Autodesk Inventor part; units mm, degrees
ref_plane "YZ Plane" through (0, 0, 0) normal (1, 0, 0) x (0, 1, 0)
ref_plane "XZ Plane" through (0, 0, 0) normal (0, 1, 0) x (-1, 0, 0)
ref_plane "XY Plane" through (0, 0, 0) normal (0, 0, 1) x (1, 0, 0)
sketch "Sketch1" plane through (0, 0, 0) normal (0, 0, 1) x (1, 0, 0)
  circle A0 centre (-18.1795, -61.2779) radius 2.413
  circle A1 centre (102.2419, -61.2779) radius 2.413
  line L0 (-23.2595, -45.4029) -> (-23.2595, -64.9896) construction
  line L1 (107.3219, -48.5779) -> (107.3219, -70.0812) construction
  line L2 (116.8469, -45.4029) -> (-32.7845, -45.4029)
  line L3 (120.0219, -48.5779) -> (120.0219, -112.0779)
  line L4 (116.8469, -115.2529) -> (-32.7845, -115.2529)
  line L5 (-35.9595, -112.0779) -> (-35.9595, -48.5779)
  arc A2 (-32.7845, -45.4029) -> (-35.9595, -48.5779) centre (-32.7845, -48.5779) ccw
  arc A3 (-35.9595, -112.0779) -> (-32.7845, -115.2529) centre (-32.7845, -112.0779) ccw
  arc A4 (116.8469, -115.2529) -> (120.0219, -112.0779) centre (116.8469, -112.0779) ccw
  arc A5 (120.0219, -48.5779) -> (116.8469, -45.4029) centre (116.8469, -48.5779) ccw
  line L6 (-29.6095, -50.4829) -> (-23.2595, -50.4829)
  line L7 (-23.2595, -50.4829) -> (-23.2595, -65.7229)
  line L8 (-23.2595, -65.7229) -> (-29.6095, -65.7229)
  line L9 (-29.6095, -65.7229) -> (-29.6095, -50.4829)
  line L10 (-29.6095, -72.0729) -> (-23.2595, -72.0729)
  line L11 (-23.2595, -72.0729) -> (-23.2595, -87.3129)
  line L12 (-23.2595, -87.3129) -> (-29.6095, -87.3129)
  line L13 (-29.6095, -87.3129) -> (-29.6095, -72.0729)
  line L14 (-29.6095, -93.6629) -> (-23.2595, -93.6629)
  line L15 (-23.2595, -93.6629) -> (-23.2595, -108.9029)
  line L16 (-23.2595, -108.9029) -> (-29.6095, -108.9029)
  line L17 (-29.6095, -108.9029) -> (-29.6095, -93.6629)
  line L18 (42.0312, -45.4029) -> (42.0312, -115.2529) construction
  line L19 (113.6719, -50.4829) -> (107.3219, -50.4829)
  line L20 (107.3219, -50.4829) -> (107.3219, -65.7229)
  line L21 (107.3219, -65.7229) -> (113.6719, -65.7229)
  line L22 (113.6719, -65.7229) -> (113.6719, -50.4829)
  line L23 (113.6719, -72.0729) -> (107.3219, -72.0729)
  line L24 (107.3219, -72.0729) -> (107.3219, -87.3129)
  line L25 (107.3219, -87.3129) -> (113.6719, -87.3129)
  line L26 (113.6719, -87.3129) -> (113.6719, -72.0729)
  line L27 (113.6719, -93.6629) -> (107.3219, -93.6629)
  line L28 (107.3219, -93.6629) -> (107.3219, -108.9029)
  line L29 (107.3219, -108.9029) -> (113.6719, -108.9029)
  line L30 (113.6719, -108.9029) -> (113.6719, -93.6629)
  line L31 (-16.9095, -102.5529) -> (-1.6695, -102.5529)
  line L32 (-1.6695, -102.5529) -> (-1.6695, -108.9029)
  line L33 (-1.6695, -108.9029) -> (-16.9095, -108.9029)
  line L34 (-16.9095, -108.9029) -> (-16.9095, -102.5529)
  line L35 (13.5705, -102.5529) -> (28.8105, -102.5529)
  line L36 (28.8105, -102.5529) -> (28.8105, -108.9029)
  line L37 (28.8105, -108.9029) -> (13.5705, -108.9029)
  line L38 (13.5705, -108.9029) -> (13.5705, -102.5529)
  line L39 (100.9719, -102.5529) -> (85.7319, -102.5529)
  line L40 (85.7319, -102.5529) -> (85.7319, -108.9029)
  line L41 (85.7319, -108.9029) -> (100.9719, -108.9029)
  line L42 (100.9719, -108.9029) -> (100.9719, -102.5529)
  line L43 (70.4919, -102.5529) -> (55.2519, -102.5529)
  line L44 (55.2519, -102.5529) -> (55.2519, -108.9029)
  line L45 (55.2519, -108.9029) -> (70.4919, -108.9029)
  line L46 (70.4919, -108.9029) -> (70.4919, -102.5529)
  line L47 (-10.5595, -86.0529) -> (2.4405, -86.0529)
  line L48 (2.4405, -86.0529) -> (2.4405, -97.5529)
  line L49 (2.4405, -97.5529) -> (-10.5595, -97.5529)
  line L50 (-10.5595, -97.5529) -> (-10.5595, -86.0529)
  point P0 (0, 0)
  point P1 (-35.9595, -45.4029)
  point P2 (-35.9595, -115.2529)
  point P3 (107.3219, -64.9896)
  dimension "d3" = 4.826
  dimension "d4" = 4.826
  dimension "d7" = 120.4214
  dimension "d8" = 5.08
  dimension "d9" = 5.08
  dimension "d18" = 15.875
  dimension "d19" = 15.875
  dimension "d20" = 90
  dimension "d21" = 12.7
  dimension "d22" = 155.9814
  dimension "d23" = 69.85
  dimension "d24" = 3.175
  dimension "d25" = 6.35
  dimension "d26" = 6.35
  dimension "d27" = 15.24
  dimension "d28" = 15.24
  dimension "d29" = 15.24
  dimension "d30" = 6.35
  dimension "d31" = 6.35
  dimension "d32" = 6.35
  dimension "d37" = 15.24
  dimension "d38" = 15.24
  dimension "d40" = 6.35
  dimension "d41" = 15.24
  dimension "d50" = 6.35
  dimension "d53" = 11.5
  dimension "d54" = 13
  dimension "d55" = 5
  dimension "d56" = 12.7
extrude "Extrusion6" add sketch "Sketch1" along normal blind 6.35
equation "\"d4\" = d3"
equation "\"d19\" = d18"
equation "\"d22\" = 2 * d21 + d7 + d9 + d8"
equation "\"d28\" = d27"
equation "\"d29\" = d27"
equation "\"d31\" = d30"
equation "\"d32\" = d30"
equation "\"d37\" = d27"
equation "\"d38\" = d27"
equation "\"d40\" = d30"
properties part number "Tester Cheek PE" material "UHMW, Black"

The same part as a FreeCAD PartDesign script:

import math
import FreeCAD as App
import Part
import Sketcher
from FreeCAD import Vector
Q = App.Units.Quantity

doc = App.newDocument("Part")
body = doc.addObject("PartDesign::Body", "Body")

# Sketch on XY plane
sketch1 = body.newObject("Sketcher::SketchObject", "Sketch")
sketch1.AttachmentSupport = (doc.getObject("XY_Plane"), [""])
sketch1.MapMode = "FlatFace"
sketch1.addGeometry([
    Part.ArcOfCircle(Part.Circle(Vector(116.8469, -48.5779, 0), Vector(0, 0, 1), 3.175), math.radians(0), math.radians(90)),  # 0
    Part.LineSegment(Vector(116.8469, -45.4029, 0), Vector(-32.7845, -45.4029, 0)),  # 1
    Part.ArcOfCircle(Part.Circle(Vector(-32.7845, -48.5779, 0), Vector(0, 0, 1), 3.175), math.radians(90), math.radians(180)),  # 2
    Part.LineSegment(Vector(-35.9595, -48.5779, 0), Vector(-35.9595, -112.0779, 0)),  # 3
    Part.ArcOfCircle(Part.Circle(Vector(-32.7845, -112.0779, 0), Vector(0, 0, 1), 3.175), math.radians(180), math.radians(270)),  # 4
    Part.LineSegment(Vector(-32.7845, -115.2529, 0), Vector(116.8469, -115.2529, 0)),  # 5
    Part.ArcOfCircle(Part.Circle(Vector(116.8469, -112.0779, 0), Vector(0, 0, 1), 3.175), math.radians(-90), math.radians(0)),  # 6
    Part.LineSegment(Vector(120.0219, -112.0779, 0), Vector(120.0219, -48.5779, 0)),  # 7
    Part.LineSegment(Vector(-29.6095, -108.9029, 0), Vector(-29.6095, -93.6629, 0)),  # 8
    Part.LineSegment(Vector(-29.6095, -93.6629, 0), Vector(-23.2595, -93.6629, 0)),  # 9
    Part.LineSegment(Vector(-23.2595, -93.6629, 0), Vector(-23.2595, -108.9029, 0)),  # 10
    Part.LineSegment(Vector(-23.2595, -108.9029, 0), Vector(-29.6095, -108.9029, 0)),  # 11
    Part.LineSegment(Vector(-16.9095, -108.9029, 0), Vector(-16.9095, -102.5529, 0)),  # 12
    Part.LineSegment(Vector(-16.9095, -102.5529, 0), Vector(-1.6695, -102.5529, 0)),  # 13
    Part.LineSegment(Vector(-1.6695, -102.5529, 0), Vector(-1.6695, -108.9029, 0)),  # 14
    Part.LineSegment(Vector(-1.6695, -108.9029, 0), Vector(-16.9095, -108.9029, 0)),  # 15
    Part.LineSegment(Vector(13.5705, -108.9029, 0), Vector(13.5705, -102.5529, 0)),  # 16
    Part.LineSegment(Vector(13.5705, -102.5529, 0), Vector(28.8105, -102.5529, 0)),  # 17
    Part.LineSegment(Vector(28.8105, -102.5529, 0), Vector(28.8105, -108.9029, 0)),  # 18
    Part.LineSegment(Vector(28.8105, -108.9029, 0), Vector(13.5705, -108.9029, 0)),  # 19
    Part.LineSegment(Vector(-10.5595, -97.5529, 0), Vector(-10.5595, -86.0529, 0)),  # 20
    Part.LineSegment(Vector(-10.5595, -86.0529, 0), Vector(2.4405, -86.0529, 0)),  # 21
    Part.LineSegment(Vector(2.4405, -86.0529, 0), Vector(2.4405, -97.5529, 0)),  # 22
    Part.LineSegment(Vector(2.4405, -97.5529, 0), Vector(-10.5595, -97.5529, 0)),  # 23
    Part.LineSegment(Vector(55.2519, -102.5529, 0), Vector(70.4919, -102.5529, 0)),  # 24
    Part.LineSegment(Vector(70.4919, -102.5529, 0), Vector(70.4919, -108.9029, 0)),  # 25
    Part.LineSegment(Vector(70.4919, -108.9029, 0), Vector(55.2519, -108.9029, 0)),  # 26
    Part.LineSegment(Vector(55.2519, -108.9029, 0), Vector(55.2519, -102.5529, 0)),  # 27
    Part.LineSegment(Vector(85.7319, -102.5529, 0), Vector(100.9719, -102.5529, 0)),  # 28
    Part.LineSegment(Vector(100.9719, -102.5529, 0), Vector(100.9719, -108.9029, 0)),  # 29
    Part.LineSegment(Vector(100.9719, -108.9029, 0), Vector(85.7319, -108.9029, 0)),  # 30
    Part.LineSegment(Vector(85.7319, -108.9029, 0), Vector(85.7319, -102.5529, 0)),  # 31
    Part.LineSegment(Vector(107.3219, -93.6629, 0), Vector(113.6719, -93.6629, 0)),  # 32
    Part.LineSegment(Vector(113.6719, -93.6629, 0), Vector(113.6719, -108.9029, 0)),  # 33
    Part.LineSegment(Vector(113.6719, -108.9029, 0), Vector(107.3219, -108.9029, 0)),  # 34
    Part.LineSegment(Vector(107.3219, -108.9029, 0), Vector(107.3219, -93.6629, 0)),  # 35
    Part.LineSegment(Vector(-29.6095, -87.3129, 0), Vector(-29.6095, -72.0729, 0)),  # 36
    Part.LineSegment(Vector(-29.6095, -72.0729, 0), Vector(-23.2595, -72.0729, 0)),  # 37
    Part.LineSegment(Vector(-23.2595, -72.0729, 0), Vector(-23.2595, -87.3129, 0)),  # 38
    Part.LineSegment(Vector(-23.2595, -87.3129, 0), Vector(-29.6095, -87.3129, 0)),  # 39
    Part.Circle(Vector(-18.1795, -61.2779, 0), Vector(0, 0, 1), 2.413),  # 40
    Part.LineSegment(Vector(-29.6095, -65.7229, 0), Vector(-29.6095, -50.4829, 0)),  # 41
    Part.LineSegment(Vector(-29.6095, -50.4829, 0), Vector(-23.2595, -50.4829, 0)),  # 42
    Part.LineSegment(Vector(-23.2595, -50.4829, 0), Vector(-23.2595, -65.7229, 0)),  # 43
    Part.LineSegment(Vector(-23.2595, -65.7229, 0), Vector(-29.6095, -65.7229, 0)),  # 44
    Part.LineSegment(Vector(107.3219, -72.0729, 0), Vector(113.6719, -72.0729, 0)),  # 45
    Part.LineSegment(Vector(113.6719, -72.0729, 0), Vector(113.6719, -87.3129, 0)),  # 46
    Part.LineSegment(Vector(113.6719, -87.3129, 0), Vector(107.3219, -87.3129, 0)),  # 47
    Part.LineSegment(Vector(107.3219, -87.3129, 0), Vector(107.3219, -72.0729, 0)),  # 48
    Part.Circle(Vector(102.2419, -61.2779, 0), Vector(0, 0, 1), 2.413),  # 49
    Part.LineSegment(Vector(107.3219, -50.4829, 0), Vector(113.6719, -50.4829, 0)),  # 50
    Part.LineSegment(Vector(113.6719, -50.4829, 0), Vector(113.6719, -65.7229, 0)),  # 51
    Part.LineSegment(Vector(113.6719, -65.7229, 0), Vector(107.3219, -65.7229, 0)),  # 52
    Part.LineSegment(Vector(107.3219, -65.7229, 0), Vector(107.3219, -50.4829, 0)),  # 53
], False)
sketch1.addConstraint([
    Sketcher.Constraint("Tangent", 0, 2, 1, 1),
    Sketcher.Constraint("Tangent", 1, 2, 2, 1),
    Sketcher.Constraint("Tangent", 2, 2, 3, 1),
    Sketcher.Constraint("Tangent", 3, 2, 4, 1),
    Sketcher.Constraint("Tangent", 4, 2, 5, 1),
    Sketcher.Constraint("Tangent", 5, 2, 6, 1),
    Sketcher.Constraint("Tangent", 6, 2, 7, 1),
    Sketcher.Constraint("Tangent", 7, 2, 0, 1),
    Sketcher.Constraint("Coincident", 8, 2, 9, 1),
    Sketcher.Constraint("Coincident", 9, 2, 10, 1),
    Sketcher.Constraint("Coincident", 10, 2, 11, 1),
    Sketcher.Constraint("Coincident", 11, 2, 8, 1),
    Sketcher.Constraint("Coincident", 12, 2, 13, 1),
    Sketcher.Constraint("Coincident", 13, 2, 14, 1),
    Sketcher.Constraint("Coincident", 14, 2, 15, 1),
    Sketcher.Constraint("Coincident", 15, 2, 12, 1),
    Sketcher.Constraint("Coincident", 16, 2, 17, 1),
    Sketcher.Constraint("Coincident", 17, 2, 18, 1),
    Sketcher.Constraint("Coincident", 18, 2, 19, 1),
    Sketcher.Constraint("Coincident", 19, 2, 16, 1),
    Sketcher.Constraint("Coincident", 20, 2, 21, 1),
    Sketcher.Constraint("Coincident", 21, 2, 22, 1),
    Sketcher.Constraint("Coincident", 22, 2, 23, 1),
    Sketcher.Constraint("Coincident", 23, 2, 20, 1),
    Sketcher.Constraint("Coincident", 24, 2, 25, 1),
    Sketcher.Constraint("Coincident", 25, 2, 26, 1),
    Sketcher.Constraint("Coincident", 26, 2, 27, 1),
    Sketcher.Constraint("Coincident", 27, 2, 24, 1),
    Sketcher.Constraint("Coincident", 28, 2, 29, 1),
    Sketcher.Constraint("Coincident", 29, 2, 30, 1),
    Sketcher.Constraint("Coincident", 30, 2, 31, 1),
    Sketcher.Constraint("Coincident", 31, 2, 28, 1),
    Sketcher.Constraint("Coincident", 32, 2, 33, 1),
    Sketcher.Constraint("Coincident", 33, 2, 34, 1),
    Sketcher.Constraint("Coincident", 34, 2, 35, 1),
    Sketcher.Constraint("Coincident", 35, 2, 32, 1),
    Sketcher.Constraint("Coincident", 36, 2, 37, 1),
    Sketcher.Constraint("Coincident", 37, 2, 38, 1),
    Sketcher.Constraint("Coincident", 38, 2, 39, 1),
    Sketcher.Constraint("Coincident", 39, 2, 36, 1),
    Sketcher.Constraint("Coincident", 41, 2, 42, 1),
    Sketcher.Constraint("Coincident", 42, 2, 43, 1),
    Sketcher.Constraint("Coincident", 43, 2, 44, 1),
    Sketcher.Constraint("Coincident", 44, 2, 41, 1),
    Sketcher.Constraint("Coincident", 45, 2, 46, 1),
    Sketcher.Constraint("Coincident", 46, 2, 47, 1),
    Sketcher.Constraint("Coincident", 47, 2, 48, 1),
    Sketcher.Constraint("Coincident", 48, 2, 45, 1),
    Sketcher.Constraint("Coincident", 50, 2, 51, 1),
    Sketcher.Constraint("Coincident", 51, 2, 52, 1),
    Sketcher.Constraint("Coincident", 52, 2, 53, 1),
    Sketcher.Constraint("Coincident", 53, 2, 50, 1),
    Sketcher.Constraint("Horizontal", 1),
    Sketcher.Constraint("Vertical", 3),
    Sketcher.Constraint("Horizontal", 5),
    Sketcher.Constraint("Vertical", 7),
    Sketcher.Constraint("Vertical", 8),
    Sketcher.Constraint("Horizontal", 9),
    Sketcher.Constraint("Vertical", 10),
    Sketcher.Constraint("Horizontal", 11),
    Sketcher.Constraint("Vertical", 12),
    Sketcher.Constraint("Horizontal", 13),
    Sketcher.Constraint("Vertical", 14),
    Sketcher.Constraint("Horizontal", 15),
    Sketcher.Constraint("Vertical", 16),
    Sketcher.Constraint("Horizontal", 17),
    Sketcher.Constraint("Vertical", 18),
    Sketcher.Constraint("Horizontal", 19),
    Sketcher.Constraint("Vertical", 20),
    Sketcher.Constraint("Horizontal", 21),
    Sketcher.Constraint("Vertical", 22),
    Sketcher.Constraint("Horizontal", 23),
    Sketcher.Constraint("Horizontal", 24),
    Sketcher.Constraint("Vertical", 25),
    Sketcher.Constraint("Horizontal", 26),
    Sketcher.Constraint("Vertical", 27),
    Sketcher.Constraint("Horizontal", 28),
    Sketcher.Constraint("Vertical", 29),
    Sketcher.Constraint("Horizontal", 30),
    Sketcher.Constraint("Vertical", 31),
    Sketcher.Constraint("Horizontal", 32),
    Sketcher.Constraint("Vertical", 33),
    Sketcher.Constraint("Horizontal", 34),
    Sketcher.Constraint("Vertical", 35),
    Sketcher.Constraint("Vertical", 36),
    Sketcher.Constraint("Horizontal", 37),
    Sketcher.Constraint("Vertical", 38),
    Sketcher.Constraint("Horizontal", 39),
    Sketcher.Constraint("Vertical", 41),
    Sketcher.Constraint("Horizontal", 42),
    Sketcher.Constraint("Vertical", 43),
    Sketcher.Constraint("Horizontal", 44),
    Sketcher.Constraint("Horizontal", 45),
    Sketcher.Constraint("Vertical", 46),
    Sketcher.Constraint("Horizontal", 47),
    Sketcher.Constraint("Vertical", 48),
    Sketcher.Constraint("Horizontal", 50),
    Sketcher.Constraint("Vertical", 51),
    Sketcher.Constraint("Horizontal", 52),
    Sketcher.Constraint("Vertical", 53),
    Sketcher.Constraint("Equal", 0, 2),
    Sketcher.Constraint("Equal", 2, 4),
    Sketcher.Constraint("Equal", 4, 6),
    Sketcher.Constraint("Equal", 40, 49),
    Sketcher.Constraint("Horizontal", 40, 3, 49, 3),
    Sketcher.Constraint("Horizontal", 11, 2, 14, 2),
    Sketcher.Constraint("Horizontal", 13, 2, 16, 2),
    Sketcher.Constraint("Horizontal", 15, 2, 18, 2),
    Sketcher.Constraint("Horizontal", 17, 2, 24, 2),
    Sketcher.Constraint("Horizontal", 19, 2, 25, 2),
    Sketcher.Constraint("Horizontal", 27, 2, 28, 2),
    Sketcher.Constraint("Horizontal", 26, 2, 29, 2),
    Sketcher.Constraint("Horizontal", 9, 2, 32, 2),
    Sketcher.Constraint("Horizontal", 30, 2, 33, 2),
    Sketcher.Constraint("Horizontal", 37, 2, 45, 2),
    Sketcher.Constraint("Horizontal", 39, 2, 46, 2),
    Sketcher.Constraint("Horizontal", 42, 2, 50, 2),
    Sketcher.Constraint("Horizontal", 44, 2, 51, 2),
    Sketcher.Constraint("Vertical", 11, 2, 36, 2),
    Sketcher.Constraint("Vertical", 10, 2, 37, 2),
    Sketcher.Constraint("Vertical", 39, 2, 41, 2),
    Sketcher.Constraint("Vertical", 38, 2, 42, 2),
    Sketcher.Constraint("Vertical", 33, 2, 45, 2),
    Sketcher.Constraint("Vertical", 35, 2, 47, 2),
    Sketcher.Constraint("Vertical", 46, 2, 50, 2),
    Sketcher.Constraint("Vertical", 48, 2, 52, 2),
    Sketcher.Constraint("Equal", 15, 17),
    Sketcher.Constraint("Equal", 19, 24),
    Sketcher.Constraint("Equal", 26, 28),
    Sketcher.Constraint("Equal", 11, 32),
    Sketcher.Constraint("Equal", 30, 8),
    Sketcher.Constraint("Equal", 52, 12),
    Sketcher.Constraint("Equal", 35, 36),
    Sketcher.Constraint("Equal", 38, 41),
    Sketcher.Constraint("Diameter", 40, Q("0.19 in")),
    Sketcher.Constraint("DistanceX", 13, 1, 13, 2, Q("0.6 in")),
    Sketcher.Constraint("Radius", 0, Q("0.125 in")),
    Sketcher.Constraint("DistanceX", 9, 1, 9, 2, Q("0.25 in")),
    Sketcher.Constraint("DistanceY", 40, 3, 2, 3, Q("0.5 in")),
    Sketcher.Constraint("DistanceX", 3, 2, 9, 2, Q("0.5 in")),
    Sketcher.Constraint("DistanceX", 9, 2, 40, 3, Q("0.2 in")),
    Sketcher.Constraint("DistanceX", 11, 2, 12, 2, Q("0.5 in")),
    Sketcher.Constraint("DistanceX", 13, 2, 16, 2, Q("0.6 in")),
    Sketcher.Constraint("DistanceX", 9, 2, 20, 2, Q("0.5 in")),
    Sketcher.Constraint("DistanceY", 5, 2, 24, 2, Q("0.5 in")),
    Sketcher.Constraint("DistanceX", 25, 2, 30, 2, Q("0.6 in")),
    Sketcher.Constraint("DistanceX", 28, 2, 32, 2, Q("0.5 in")),
    Sketcher.Constraint("DistanceY", 41, 2, 1, 2, Q("0.2 in")),
    Sketcher.Constraint("DistanceY", 28, 2, 46, 2, Q("0.6 in")),
    Sketcher.Constraint("DistanceX", 49, 3, 48, 2, Q("0.2 in")),
    Sketcher.Constraint("DistanceX", 53, 2, 7, 2, Q("0.5 in")),
    Sketcher.Constraint("DistanceY", 5, 2, 0, 2, Q("2.75 in")),
    Sketcher.Constraint("DistanceX", 21, 1, 21, 2, Q("0.5118 in")),
    Sketcher.Constraint("DistanceX", 40, 3, 49, 3, Q("4.741 in")),
    Sketcher.Constraint("DistanceY", 20, 1, 20, 2, Q("11.5 mm")),
    Sketcher.Constraint("DistanceY", 13, 2, 22, 2, Q("5 mm")),
    Sketcher.Constraint("DistanceY", 20, 2, -1, 1, Q("3.3879 in")),
    Sketcher.Constraint("DistanceX", -1, 1, 0, 3, Q("116.847 mm")),
])
pad1 = body.newObject("PartDesign::Pad", "Pad")
pad1.Profile = sketch1
pad1.Length = Q("0.25 in")

doc.recompute()
